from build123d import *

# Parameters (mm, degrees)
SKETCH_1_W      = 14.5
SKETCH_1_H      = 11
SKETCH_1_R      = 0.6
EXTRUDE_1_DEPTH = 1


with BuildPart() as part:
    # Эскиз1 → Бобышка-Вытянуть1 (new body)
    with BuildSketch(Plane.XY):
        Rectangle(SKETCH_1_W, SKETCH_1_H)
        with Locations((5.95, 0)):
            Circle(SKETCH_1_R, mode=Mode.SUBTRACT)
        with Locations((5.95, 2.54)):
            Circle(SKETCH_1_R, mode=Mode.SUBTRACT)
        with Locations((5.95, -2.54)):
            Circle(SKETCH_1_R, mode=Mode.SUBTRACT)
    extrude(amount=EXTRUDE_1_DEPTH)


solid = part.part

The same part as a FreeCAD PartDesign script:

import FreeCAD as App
import Part
import Sketcher

V = App.Vector
Q = App.Units.Quantity

doc = App.newDocument("Part")
body = doc.addObject("PartDesign::Body", "Body")

# Sketch on XY plane
sketch1 = doc.addObject("Sketcher::SketchObject", "Sketch")
body.addObject(sketch1)
sketch1.AttachmentSupport = (doc.XY_Plane, [""])
sketch1.MapMode = "FlatFace"
sketch1.addGeometry(Part.LineSegment(V(-7.2, 5.5, 0), V(-7.2, -5.5, 0)), False)
sketch1.addGeometry(Part.LineSegment(V(-7.2, -5.5, 0), V(7.2, -5.5, 0)), False)
sketch1.addGeometry(Part.LineSegment(V(7.2, -5.5, 0), V(7.2, 5.5, 0)), False)
sketch1.addGeometry(Part.LineSegment(V(7.2, 5.5, 0), V(-7.2, 5.5, 0)), False)
sketch1.addGeometry(Part.Circle(V(6, -2.5, 0), V(0, 0, 1), 0.6), False)
sketch1.addGeometry(Part.Circle(V(6, 0, 0), V(0, 0, 1), 0.6), False)
sketch1.addGeometry(Part.Circle(V(6, 2.5, 0), V(0, 0, 1), 0.6), False)
sketch1.addConstraint(Sketcher.Constraint("Coincident", 0, 2, 1, 1))
sketch1.addConstraint(Sketcher.Constraint("Coincident", 1, 2, 2, 1))
sketch1.addConstraint(Sketcher.Constraint("Coincident", 2, 2, 3, 1))
sketch1.addConstraint(Sketcher.Constraint("Coincident", 3, 2, 0, 1))
sketch1.addConstraint(Sketcher.Constraint("Vertical", 0))
sketch1.addConstraint(Sketcher.Constraint("Horizontal", 1))
sketch1.addConstraint(Sketcher.Constraint("Vertical", 2))
sketch1.addConstraint(Sketcher.Constraint("Horizontal", 3))
sketch1.addConstraint(Sketcher.Constraint("Equal", 4, 5))
sketch1.addConstraint(Sketcher.Constraint("Equal", 5, 6))
sketch1.addConstraint(Sketcher.Constraint("Symmetric", 0, 2, 2, 2, -1, 1))
sketch1.addConstraint(Sketcher.Constraint("Symmetric", 4, 3, 6, 3, -1))
sketch1.addConstraint(Sketcher.Constraint("PointOnObject", 5, 3, -1))
sketch1.addConstraint(Sketcher.Constraint("Vertical", 4, 3, 5, 3))
sketch1.addConstraint(Sketcher.Constraint("Diameter", 4, Q("1.2 mm")))
sketch1.addConstraint(Sketcher.Constraint("DistanceY", 0, 2, 0, 1, Q("11 mm")))
sketch1.addConstraint(Sketcher.Constraint("DistanceX", 1, 1, 1, 2, Q("14.5 mm")))
sketch1.addConstraint(Sketcher.Constraint("DistanceX", 0, 2, 4, 3, Q("13.2 mm")))
sketch1.addConstraint(Sketcher.Constraint("DistanceY", 4, 3, -1, 1, Q("2.54 mm")))
pad1 = doc.addObject("PartDesign::Pad", "Pad")
body.addObject(pad1)
pad1.Profile = sketch1
pad1.Length = 1

doc.recompute()
